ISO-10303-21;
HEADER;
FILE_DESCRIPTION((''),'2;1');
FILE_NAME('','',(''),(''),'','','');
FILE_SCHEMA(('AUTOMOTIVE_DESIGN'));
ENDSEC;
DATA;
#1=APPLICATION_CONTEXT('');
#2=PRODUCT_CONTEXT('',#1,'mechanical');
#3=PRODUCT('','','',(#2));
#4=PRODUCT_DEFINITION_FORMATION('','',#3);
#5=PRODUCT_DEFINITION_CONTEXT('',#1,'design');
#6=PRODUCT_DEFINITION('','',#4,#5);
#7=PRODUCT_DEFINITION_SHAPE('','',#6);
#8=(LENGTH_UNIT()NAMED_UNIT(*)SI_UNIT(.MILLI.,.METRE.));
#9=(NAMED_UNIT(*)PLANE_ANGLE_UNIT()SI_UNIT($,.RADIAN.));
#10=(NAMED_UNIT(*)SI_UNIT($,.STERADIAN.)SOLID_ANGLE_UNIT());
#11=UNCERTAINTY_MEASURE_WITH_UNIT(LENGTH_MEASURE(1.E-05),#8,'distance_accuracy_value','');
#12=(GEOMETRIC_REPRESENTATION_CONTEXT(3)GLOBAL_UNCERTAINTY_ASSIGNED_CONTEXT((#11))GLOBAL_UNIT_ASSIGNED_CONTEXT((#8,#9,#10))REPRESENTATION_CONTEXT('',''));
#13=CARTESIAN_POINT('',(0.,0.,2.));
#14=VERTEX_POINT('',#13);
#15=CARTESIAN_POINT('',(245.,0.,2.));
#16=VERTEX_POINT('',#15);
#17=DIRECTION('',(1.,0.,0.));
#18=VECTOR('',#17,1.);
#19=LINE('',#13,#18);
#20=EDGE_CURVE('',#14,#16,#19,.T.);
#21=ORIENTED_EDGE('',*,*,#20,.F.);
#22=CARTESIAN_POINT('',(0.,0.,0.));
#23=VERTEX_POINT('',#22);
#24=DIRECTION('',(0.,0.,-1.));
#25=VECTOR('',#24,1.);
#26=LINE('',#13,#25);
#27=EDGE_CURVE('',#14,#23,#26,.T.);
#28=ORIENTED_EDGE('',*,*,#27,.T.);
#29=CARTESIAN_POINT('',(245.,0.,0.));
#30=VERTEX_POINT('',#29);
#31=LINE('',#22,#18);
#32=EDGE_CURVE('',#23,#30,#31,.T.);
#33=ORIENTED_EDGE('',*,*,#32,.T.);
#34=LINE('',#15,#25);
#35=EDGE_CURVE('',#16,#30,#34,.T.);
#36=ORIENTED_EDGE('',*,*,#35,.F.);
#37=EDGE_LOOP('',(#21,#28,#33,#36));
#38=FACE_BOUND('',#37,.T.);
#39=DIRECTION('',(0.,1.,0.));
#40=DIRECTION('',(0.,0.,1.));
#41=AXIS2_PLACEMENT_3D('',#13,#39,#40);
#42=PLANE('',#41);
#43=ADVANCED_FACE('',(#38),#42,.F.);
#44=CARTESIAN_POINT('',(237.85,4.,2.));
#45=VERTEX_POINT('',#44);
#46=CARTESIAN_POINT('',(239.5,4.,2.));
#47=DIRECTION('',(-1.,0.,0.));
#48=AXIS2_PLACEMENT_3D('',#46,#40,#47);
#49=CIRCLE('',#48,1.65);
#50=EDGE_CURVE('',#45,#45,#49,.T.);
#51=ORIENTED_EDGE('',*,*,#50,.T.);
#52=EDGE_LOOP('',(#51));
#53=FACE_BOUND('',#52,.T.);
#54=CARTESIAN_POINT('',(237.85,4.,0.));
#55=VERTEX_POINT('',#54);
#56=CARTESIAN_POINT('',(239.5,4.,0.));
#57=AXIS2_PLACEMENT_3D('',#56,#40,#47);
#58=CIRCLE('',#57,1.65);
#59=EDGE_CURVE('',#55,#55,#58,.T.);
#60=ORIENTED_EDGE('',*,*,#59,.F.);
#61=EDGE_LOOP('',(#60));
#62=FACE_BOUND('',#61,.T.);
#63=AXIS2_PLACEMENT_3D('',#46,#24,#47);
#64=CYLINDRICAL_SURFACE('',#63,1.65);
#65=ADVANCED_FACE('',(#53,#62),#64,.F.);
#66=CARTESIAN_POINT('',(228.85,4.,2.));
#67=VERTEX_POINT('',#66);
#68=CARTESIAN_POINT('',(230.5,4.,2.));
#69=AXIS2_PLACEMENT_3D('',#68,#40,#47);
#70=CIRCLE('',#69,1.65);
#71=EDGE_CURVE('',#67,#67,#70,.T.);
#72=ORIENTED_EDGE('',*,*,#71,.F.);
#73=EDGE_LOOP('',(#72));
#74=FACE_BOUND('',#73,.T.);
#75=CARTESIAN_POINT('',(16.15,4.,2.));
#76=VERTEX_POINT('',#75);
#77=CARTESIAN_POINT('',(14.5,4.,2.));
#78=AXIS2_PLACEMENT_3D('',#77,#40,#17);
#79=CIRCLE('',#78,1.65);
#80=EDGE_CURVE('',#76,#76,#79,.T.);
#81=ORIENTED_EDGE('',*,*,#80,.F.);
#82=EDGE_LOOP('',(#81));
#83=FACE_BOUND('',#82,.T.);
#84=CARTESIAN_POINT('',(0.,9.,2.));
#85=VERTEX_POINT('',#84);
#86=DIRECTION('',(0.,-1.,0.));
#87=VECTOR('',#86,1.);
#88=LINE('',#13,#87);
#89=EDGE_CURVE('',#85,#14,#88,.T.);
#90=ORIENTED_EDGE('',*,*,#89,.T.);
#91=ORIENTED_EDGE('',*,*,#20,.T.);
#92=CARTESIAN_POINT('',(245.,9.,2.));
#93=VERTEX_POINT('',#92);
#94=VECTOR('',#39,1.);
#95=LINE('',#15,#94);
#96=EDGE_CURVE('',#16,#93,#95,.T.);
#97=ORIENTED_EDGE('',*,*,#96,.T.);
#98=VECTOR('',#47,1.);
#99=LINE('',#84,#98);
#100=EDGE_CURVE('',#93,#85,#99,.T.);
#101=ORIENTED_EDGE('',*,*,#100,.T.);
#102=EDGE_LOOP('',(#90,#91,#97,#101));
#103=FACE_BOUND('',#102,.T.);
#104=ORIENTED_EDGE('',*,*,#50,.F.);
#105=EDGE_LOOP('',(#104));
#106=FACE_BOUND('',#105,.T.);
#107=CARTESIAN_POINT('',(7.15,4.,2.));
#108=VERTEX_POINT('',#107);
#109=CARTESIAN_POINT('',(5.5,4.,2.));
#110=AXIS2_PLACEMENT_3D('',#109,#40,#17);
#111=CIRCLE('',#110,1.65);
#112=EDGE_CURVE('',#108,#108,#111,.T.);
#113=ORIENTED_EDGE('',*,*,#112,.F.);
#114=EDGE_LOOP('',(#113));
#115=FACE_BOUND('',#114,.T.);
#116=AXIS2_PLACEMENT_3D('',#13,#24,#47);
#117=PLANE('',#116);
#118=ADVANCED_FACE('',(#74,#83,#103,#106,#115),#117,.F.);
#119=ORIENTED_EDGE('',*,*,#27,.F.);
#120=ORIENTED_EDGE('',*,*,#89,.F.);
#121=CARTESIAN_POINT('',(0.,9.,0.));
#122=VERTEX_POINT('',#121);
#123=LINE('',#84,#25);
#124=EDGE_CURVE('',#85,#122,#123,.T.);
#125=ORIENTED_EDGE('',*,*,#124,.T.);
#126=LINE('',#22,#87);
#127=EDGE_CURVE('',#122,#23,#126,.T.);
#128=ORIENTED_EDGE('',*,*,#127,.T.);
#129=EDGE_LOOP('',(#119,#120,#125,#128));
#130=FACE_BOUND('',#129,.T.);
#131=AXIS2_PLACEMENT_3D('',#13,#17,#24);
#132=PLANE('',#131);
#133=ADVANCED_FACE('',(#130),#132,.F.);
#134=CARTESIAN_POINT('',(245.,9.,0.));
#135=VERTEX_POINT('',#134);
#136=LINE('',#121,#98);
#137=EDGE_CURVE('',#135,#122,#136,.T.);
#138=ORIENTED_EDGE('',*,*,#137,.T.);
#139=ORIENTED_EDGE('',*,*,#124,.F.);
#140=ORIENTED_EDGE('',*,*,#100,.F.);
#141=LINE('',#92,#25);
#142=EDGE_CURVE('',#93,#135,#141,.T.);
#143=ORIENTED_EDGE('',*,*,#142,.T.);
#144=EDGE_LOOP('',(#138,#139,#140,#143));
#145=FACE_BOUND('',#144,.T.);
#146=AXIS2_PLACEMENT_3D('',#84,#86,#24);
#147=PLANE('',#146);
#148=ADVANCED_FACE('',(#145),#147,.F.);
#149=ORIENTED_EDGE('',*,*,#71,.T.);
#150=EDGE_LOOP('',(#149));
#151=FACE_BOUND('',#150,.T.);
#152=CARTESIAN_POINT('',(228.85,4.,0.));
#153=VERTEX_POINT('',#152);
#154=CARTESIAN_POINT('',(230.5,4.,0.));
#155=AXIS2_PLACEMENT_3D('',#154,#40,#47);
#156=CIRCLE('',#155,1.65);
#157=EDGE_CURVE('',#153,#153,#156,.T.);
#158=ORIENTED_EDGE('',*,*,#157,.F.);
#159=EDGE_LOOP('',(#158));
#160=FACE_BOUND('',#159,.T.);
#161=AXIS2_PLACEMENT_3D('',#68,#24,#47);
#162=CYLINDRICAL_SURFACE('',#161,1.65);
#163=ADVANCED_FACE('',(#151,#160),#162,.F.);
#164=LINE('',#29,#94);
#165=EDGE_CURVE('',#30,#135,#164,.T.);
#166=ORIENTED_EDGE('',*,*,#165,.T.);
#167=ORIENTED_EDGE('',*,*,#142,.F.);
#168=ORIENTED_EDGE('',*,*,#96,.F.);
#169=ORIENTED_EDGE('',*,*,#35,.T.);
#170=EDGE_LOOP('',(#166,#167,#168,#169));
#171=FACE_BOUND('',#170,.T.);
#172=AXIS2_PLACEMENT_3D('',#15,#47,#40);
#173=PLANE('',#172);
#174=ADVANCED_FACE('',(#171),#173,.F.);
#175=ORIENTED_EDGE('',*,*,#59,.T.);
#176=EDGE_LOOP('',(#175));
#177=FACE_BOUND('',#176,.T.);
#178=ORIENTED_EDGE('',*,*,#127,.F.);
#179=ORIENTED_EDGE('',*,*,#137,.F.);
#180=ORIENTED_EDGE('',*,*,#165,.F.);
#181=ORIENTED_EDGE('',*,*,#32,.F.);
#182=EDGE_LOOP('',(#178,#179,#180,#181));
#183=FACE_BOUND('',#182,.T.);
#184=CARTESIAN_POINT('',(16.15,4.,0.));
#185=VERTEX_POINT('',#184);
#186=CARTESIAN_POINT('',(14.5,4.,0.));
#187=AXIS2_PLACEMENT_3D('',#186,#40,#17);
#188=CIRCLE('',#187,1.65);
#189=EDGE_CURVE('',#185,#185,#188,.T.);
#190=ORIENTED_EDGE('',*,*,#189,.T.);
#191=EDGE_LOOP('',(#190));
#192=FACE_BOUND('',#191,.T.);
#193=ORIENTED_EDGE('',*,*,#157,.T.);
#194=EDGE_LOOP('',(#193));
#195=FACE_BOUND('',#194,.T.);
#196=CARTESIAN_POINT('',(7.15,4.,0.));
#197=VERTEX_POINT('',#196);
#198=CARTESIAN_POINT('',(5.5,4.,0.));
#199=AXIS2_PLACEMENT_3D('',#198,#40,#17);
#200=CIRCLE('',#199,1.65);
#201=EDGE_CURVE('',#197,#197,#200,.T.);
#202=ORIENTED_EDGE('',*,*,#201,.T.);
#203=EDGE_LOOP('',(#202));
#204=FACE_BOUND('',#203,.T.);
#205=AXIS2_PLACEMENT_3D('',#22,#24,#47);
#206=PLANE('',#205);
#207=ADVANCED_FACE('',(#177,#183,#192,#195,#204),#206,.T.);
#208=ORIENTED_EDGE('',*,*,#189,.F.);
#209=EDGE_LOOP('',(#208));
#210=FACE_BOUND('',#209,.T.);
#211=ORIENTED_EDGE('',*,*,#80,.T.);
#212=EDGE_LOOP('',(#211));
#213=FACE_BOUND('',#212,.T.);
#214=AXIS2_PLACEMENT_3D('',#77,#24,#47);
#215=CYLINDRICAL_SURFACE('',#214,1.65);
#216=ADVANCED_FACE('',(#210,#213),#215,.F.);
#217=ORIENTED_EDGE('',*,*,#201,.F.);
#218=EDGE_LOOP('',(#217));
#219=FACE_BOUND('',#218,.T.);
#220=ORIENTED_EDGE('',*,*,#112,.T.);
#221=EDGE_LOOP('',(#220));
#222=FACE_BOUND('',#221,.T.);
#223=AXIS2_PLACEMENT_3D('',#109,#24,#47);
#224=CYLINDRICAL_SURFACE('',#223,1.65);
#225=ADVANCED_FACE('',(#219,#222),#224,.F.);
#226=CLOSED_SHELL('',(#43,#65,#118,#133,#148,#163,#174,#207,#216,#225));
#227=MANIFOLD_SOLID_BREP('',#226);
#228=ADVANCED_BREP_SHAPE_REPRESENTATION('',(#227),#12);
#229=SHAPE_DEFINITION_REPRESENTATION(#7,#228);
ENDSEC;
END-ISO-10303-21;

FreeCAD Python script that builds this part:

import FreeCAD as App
import Part
import Sketcher
from FreeCAD import Vector
Q = App.Units.Quantity


def add_polygon(sketch, points):
    """Adds a closed chain of lines whose ends are joined by coincident constraints."""
    first, n = sketch.GeometryCount, len(points)
    for a, b in zip(points, points[1:] + points[:1]):
        sketch.addGeometry(Part.LineSegment(App.Vector(*a, 0), App.Vector(*b, 0)), False)
    for i in range(n):
        sketch.addConstraint(Sketcher.Constraint("Coincident", first + i, 2, first + (i + 1) % n, 1))

doc = App.newDocument("Part")
body = doc.addObject("PartDesign::Body", "Body")

# Sketch on XY plane
sketch1 = body.newObject("Sketcher::SketchObject", "Sketch")
sketch1.AttachmentSupport = (doc.getObject("XY_Plane"), [""])
sketch1.MapMode = "FlatFace"
add_polygon(sketch1, [(0, 9), (0, 0), (245, 0), (245, 9)])  # lines 0-3
sketch1.addGeometry(Part.Circle(Vector(5.5, 4, 0), Vector(0, 0, 1), 1.65), False)  # 4
sketch1.addGeometry(Part.Circle(Vector(14.5, 4, 0), Vector(0, 0, 1), 1.65), False)  # 5
sketch1.addGeometry(Part.Circle(Vector(230.5, 4, 0), Vector(0, 0, 1), 1.65), False)  # 6
sketch1.addGeometry(Part.Circle(Vector(239.5, 4, 0), Vector(0, 0, 1), 1.65), False)  # 7
sketch1.addConstraint([
    Sketcher.Constraint("Vertical", 0),
    Sketcher.Constraint("Horizontal", 1),
    Sketcher.Constraint("Vertical", 2),
    Sketcher.Constraint("Horizontal", 3),
    Sketcher.Constraint("Coincident", 0, 2, -1, 1),
    Sketcher.Constraint("Equal", 4, 5),
    Sketcher.Constraint("Equal", 5, 6),
    Sketcher.Constraint("Equal", 6, 7),
    Sketcher.Constraint("Horizontal", 4, 3, 5, 3),
    Sketcher.Constraint("Horizontal", 5, 3, 6, 3),
    Sketcher.Constraint("Horizontal", 6, 3, 7, 3),
    Sketcher.Constraint("Diameter", 4, Q("3.3 mm")),
    Sketcher.Constraint("DistanceX", 1, 1, 1, 2, Q("245 mm")),
    Sketcher.Constraint("DistanceY", 0, 2, 0, 1, Q("9 mm")),
    Sketcher.Constraint("DistanceY", -1, 1, 4, 3, Q("4 mm")),
    Sketcher.Constraint("DistanceX", 4, 3, 5, 3, Q("9 mm")),
    Sketcher.Constraint("DistanceX", 5, 3, 6, 3, Q("216 mm")),
    Sketcher.Constraint("DistanceX", 6, 3, 7, 3, Q("9 mm")),
    Sketcher.Constraint("DistanceX", -1, 1, 4, 3, Q("5.5 mm")),
])
pad1 = body.newObject("PartDesign::Pad", "Pad")
pad1.Profile = sketch1
pad1.Length = 2

doc.recompute()
